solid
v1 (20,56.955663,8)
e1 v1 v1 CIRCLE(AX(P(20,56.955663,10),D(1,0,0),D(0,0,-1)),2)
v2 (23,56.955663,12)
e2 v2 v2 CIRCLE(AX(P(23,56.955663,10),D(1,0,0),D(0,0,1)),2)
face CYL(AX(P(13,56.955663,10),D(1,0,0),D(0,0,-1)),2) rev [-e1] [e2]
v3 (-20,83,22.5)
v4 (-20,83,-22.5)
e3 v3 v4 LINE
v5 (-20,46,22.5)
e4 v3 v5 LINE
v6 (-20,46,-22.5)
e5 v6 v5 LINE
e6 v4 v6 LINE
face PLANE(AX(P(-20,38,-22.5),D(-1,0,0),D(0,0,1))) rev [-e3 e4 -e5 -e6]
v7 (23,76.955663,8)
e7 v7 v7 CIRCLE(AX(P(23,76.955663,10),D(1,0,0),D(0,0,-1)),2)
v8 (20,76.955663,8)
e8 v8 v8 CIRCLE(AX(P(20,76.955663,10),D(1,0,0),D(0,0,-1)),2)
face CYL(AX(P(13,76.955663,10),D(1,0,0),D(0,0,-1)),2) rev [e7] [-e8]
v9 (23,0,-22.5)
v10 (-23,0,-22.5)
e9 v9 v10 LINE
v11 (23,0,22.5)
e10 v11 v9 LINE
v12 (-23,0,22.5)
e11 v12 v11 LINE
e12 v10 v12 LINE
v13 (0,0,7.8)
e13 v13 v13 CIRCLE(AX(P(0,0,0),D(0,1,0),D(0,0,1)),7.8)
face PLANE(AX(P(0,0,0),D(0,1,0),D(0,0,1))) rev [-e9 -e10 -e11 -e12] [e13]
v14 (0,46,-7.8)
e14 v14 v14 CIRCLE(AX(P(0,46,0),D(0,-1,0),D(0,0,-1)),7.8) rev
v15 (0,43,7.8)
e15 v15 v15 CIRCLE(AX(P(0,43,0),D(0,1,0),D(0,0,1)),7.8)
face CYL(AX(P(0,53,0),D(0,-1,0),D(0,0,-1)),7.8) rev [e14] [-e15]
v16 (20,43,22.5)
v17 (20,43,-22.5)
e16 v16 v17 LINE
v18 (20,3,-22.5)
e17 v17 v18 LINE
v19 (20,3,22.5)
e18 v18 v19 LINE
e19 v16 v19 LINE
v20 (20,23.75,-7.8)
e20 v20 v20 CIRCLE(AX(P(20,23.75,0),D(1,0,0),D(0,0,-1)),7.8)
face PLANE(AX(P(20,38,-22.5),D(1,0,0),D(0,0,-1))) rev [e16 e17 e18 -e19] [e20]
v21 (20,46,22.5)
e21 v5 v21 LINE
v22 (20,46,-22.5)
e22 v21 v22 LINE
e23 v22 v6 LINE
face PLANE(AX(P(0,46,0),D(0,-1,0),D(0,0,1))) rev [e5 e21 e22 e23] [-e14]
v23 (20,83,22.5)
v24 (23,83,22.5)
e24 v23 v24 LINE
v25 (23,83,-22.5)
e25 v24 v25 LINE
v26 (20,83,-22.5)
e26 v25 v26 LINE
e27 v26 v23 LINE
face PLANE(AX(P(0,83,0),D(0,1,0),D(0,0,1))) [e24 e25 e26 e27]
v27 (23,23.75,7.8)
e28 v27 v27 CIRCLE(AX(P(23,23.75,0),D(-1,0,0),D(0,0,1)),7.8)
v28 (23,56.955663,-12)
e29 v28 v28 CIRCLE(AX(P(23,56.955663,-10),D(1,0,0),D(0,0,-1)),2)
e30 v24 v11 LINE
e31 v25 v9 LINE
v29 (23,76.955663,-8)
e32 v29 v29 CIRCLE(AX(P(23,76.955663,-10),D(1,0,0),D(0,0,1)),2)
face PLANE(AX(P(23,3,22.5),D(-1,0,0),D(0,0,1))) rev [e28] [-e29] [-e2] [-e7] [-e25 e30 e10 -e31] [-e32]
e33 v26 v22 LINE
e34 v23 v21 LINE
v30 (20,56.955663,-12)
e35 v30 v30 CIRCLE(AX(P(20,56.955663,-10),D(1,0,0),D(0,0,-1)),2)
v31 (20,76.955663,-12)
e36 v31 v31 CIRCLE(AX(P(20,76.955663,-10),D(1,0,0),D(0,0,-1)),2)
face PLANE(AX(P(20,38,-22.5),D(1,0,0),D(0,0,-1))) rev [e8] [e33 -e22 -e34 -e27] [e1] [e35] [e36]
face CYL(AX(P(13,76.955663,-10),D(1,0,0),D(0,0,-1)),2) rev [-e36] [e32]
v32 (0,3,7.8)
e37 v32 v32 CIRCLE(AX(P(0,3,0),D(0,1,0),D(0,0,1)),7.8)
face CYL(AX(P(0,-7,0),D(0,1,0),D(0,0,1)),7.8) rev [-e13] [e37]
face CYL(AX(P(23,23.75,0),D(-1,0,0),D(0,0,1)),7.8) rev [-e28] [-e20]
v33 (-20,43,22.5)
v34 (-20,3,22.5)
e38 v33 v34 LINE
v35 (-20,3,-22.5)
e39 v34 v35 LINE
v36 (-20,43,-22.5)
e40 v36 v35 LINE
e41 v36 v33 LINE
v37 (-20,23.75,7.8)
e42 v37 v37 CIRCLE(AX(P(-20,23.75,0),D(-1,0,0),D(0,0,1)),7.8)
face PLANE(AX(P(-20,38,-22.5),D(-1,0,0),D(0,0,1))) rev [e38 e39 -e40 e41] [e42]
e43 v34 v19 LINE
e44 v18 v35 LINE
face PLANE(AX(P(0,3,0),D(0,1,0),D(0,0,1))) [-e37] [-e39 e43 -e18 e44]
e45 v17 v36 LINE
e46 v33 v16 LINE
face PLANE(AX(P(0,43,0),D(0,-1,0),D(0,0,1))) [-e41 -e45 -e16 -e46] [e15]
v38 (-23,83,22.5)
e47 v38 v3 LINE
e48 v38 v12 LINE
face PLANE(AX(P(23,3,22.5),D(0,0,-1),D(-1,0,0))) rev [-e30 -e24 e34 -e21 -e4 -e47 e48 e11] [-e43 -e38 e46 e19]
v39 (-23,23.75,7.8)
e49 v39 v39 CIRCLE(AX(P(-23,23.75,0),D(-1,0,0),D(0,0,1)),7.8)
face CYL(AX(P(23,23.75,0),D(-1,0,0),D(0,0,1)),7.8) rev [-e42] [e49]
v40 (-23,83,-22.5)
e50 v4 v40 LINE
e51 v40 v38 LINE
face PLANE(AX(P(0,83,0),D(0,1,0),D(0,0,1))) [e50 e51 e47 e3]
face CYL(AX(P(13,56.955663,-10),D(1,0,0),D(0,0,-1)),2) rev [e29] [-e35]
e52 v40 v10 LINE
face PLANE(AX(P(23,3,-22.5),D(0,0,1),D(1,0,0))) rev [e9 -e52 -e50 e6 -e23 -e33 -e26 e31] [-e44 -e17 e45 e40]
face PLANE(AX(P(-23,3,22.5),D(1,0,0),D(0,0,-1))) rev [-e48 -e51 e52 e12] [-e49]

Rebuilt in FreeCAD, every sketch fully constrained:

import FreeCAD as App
import Part
import Sketcher

V = App.Vector


def add_polygon(sketch, points):
    """Adds a closed chain of lines whose ends are joined by coincident constraints."""
    first, n = sketch.GeometryCount, len(points)
    for a, b in zip(points, points[1:] + points[:1]):
        sketch.addGeometry(Part.LineSegment(App.Vector(*a, 0), App.Vector(*b, 0)), False)
    for i in range(n):
        sketch.addConstraint(Sketcher.Constraint("Coincident", first + i, 2, first + (i + 1) % n, 1))

doc = App.newDocument("Part")
params = doc.addObject("Spreadsheet::Sheet", "Params")
for row, (alias, value) in enumerate([
    ("sketch1_width", "46 mm"),
    ("sketch1_height", "45 mm"),
    ("pad1_length", "3 mm"),
    ("sketch2_width", "3 mm"),
    ("sketch2_height", "45 mm"),
    ("pad2_length", "35 mm"),
    ("sketch3_diameter", "15.6 mm"),
    ("pocket1_length", "10 mm"),
    ("sketch4_diameter", "15.6 mm"),
    ("sketch5_width", "3 mm"),
    ("sketch5_height", "45 mm"),
    ("pad3_length", "45 mm"),
    ("sketch6_diameter", "4 mm"),
    ("pocket3_length", "10 mm"),
], start=1):
    params.set(f"A{row}", alias)
    params.set(f"B{row}", "=" + value)
    params.setAlias(f"B{row}", alias)

body = doc.addObject("PartDesign::Body", "Body")

# Sketch on XZ plane
sketch1 = body.newObject("Sketcher::SketchObject", "Sketch")
sketch1.AttachmentSupport = (doc.getObject("XZ_Plane"), [""])
sketch1.MapMode = "FlatFace"
add_polygon(sketch1, [(-23, -22.5), (-23, 22.5), (23, 22.5), (23, -22.5)])  # lines 0-3
sketch1.addConstraint(Sketcher.Constraint("Vertical", 0))
sketch1.addConstraint(Sketcher.Constraint("Horizontal", 1))
sketch1.addConstraint(Sketcher.Constraint("Vertical", 2))
sketch1.addConstraint(Sketcher.Constraint("Horizontal", 3))
sketch1.addConstraint(Sketcher.Constraint("Symmetric", 0, 2, 2, 2, -1, 1))
sketch1.addConstraint(Sketcher.Constraint("DistanceX", 1, 1, 1, 2, 46.0))
sketch1.addConstraint(Sketcher.Constraint("DistanceY", 0, 1, 0, 2, 45.0))
sketch1.setExpression("Constraints[9]", "Params.sketch1_width")
sketch1.setExpression("Constraints[10]", "Params.sketch1_height")
pad1 = body.newObject("PartDesign::Pad", "Pad")
pad1.Profile = sketch1
pad1.setExpression("Length", "Params.pad1_length")
pad1.Reversed = True

# Sketch on XZ plane
sketch2 = body.newObject("Sketcher::SketchObject", "Sketch001")
sketch2.AttachmentSupport = (doc.getObject("XZ_Plane"), [""])
sketch2.MapMode = "FlatFace"
sketch2.AttachmentOffset = App.Placement(V(0, 0, -3), App.Rotation())
add_polygon(sketch2, [(20, -22.5), (20, 22.5), (23, 22.5), (23, -22.5)])  # lines 0-3
add_polygon(sketch2, [(-23, -22.5), (-23, 22.5), (-20, 22.5), (-20, -22.5)])  # lines 4-7
sketch2.addConstraint(Sketcher.Constraint("Vertical", 0))
sketch2.addConstraint(Sketcher.Constraint("Horizontal", 1))
sketch2.addConstraint(Sketcher.Constraint("Vertical", 2))
sketch2.addConstraint(Sketcher.Constraint("Horizontal", 3))
sketch2.addConstraint(Sketcher.Constraint("Vertical", 4))
sketch2.addConstraint(Sketcher.Constraint("Horizontal", 5))
sketch2.addConstraint(Sketcher.Constraint("Vertical", 6))
sketch2.addConstraint(Sketcher.Constraint("Horizontal", 7))
sketch2.addConstraint(Sketcher.Constraint("Symmetric", 2, 2, 4, 2, -1, 1))
sketch2.addConstraint(Sketcher.Constraint("Symmetric", 0, 2, 6, 2, -1, 1))
sketch2.addConstraint(Sketcher.Constraint("Horizontal", 1, 2, 4, 2))
sketch2.addConstraint(Sketcher.Constraint("DistanceX", 1, 1, 1, 2, 3.0))
sketch2.addConstraint(Sketcher.Constraint("DistanceY", 0, 1, 0, 2, 45.0))
sketch2.addConstraint(Sketcher.Constraint("DistanceX", -1, 1, 0, 2, 20.0))
sketch2.setExpression("Constraints[19]", "Params.sketch2_width")
sketch2.setExpression("Constraints[20]", "Params.sketch2_height")
pad2 = body.newObject("PartDesign::Pad", "Pad001")
pad2.Profile = sketch2
pad2.setExpression("Length", "Params.pad2_length")
pad2.Reversed = True

# Sketch on XZ plane
sketch3 = body.newObject("Sketcher::SketchObject", "Sketch002")
sketch3.AttachmentSupport = (doc.getObject("XZ_Plane"), [""])
sketch3.MapMode = "FlatFace"
sketch3.AttachmentOffset = App.Placement(V(0, 0, -3), App.Rotation())
sketch3.addGeometry(Part.Circle(V(0, 0, 0), V(0, 0, 1), 7.8), False)
sketch3.addConstraint(Sketcher.Constraint("Coincident", 0, 3, -1, 1))
sketch3.addConstraint(Sketcher.Constraint("Diameter", 0, 15.6))
sketch3.setExpression("Constraints[1]", "Params.sketch3_diameter")
pocket1 = body.newObject("PartDesign::Pocket", "Pocket")
pocket1.Profile = sketch3
pocket1.setExpression("Length", "Params.pocket1_length")
pocket1.Reversed = True

# Sketch on YZ plane
sketch4 = body.newObject("Sketcher::SketchObject", "Sketch003")
sketch4.AttachmentSupport = (doc.getObject("YZ_Plane"), [""])
sketch4.MapMode = "FlatFace"
sketch4.AttachmentOffset = App.Placement(V(0, 0, -23), App.Rotation())
sketch4.addGeometry(Part.Circle(V(23.75, 0, 0), V(0, 0, 1), 7.8), False)
sketch4.addConstraint(Sketcher.Constraint("PointOnObject", 0, 3, -1))
sketch4.addConstraint(Sketcher.Constraint("Diameter", 0, 15.6))
sketch4.addConstraint(Sketcher.Constraint("DistanceX", -1, 1, 0, 3, 23.75))
sketch4.setExpression("Constraints[1]", "Params.sketch4_diameter")
pocket2 = body.newObject("PartDesign::Pocket", "Pocket001")
pocket2.Profile = sketch4
pocket2.Type = "ThroughAll"
pocket2.Reversed = True

# Sketch on XZ plane
sketch5 = body.newObject("Sketcher::SketchObject", "Sketch004")
sketch5.AttachmentSupport = (doc.getObject("XZ_Plane"), [""])
sketch5.MapMode = "FlatFace"
sketch5.AttachmentOffset = App.Placement(V(0, 0, -38), App.Rotation())
add_polygon(sketch5, [(-23, -22.5), (-23, 22.5), (-20, 22.5), (-20, -22.5)])  # lines 0-3
add_polygon(sketch5, [(20, -22.5), (20, 22.5), (23, 22.5), (23, -22.5)])  # lines 4-7
sketch5.addConstraint(Sketcher.Constraint("Vertical", 0))
sketch5.addConstraint(Sketcher.Constraint("Horizontal", 1))
sketch5.addConstraint(Sketcher.Constraint("Vertical", 2))
sketch5.addConstraint(Sketcher.Constraint("Horizontal", 3))
sketch5.addConstraint(Sketcher.Constraint("Vertical", 4))
sketch5.addConstraint(Sketcher.Constraint("Horizontal", 5))
sketch5.addConstraint(Sketcher.Constraint("Vertical", 6))
sketch5.addConstraint(Sketcher.Constraint("Horizontal", 7))
sketch5.addConstraint(Sketcher.Constraint("Symmetric", 2, 2, 4, 2, -1, 1))
sketch5.addConstraint(Sketcher.Constraint("Symmetric", 0, 2, 6, 2, -1, 1))
sketch5.addConstraint(Sketcher.Constraint("Horizontal", 1, 2, 4, 2))
sketch5.addConstraint(Sketcher.Constraint("DistanceX", 1, 1, 1, 2, 3.0))
sketch5.addConstraint(Sketcher.Constraint("DistanceY", 0, 1, 0, 2, 45.0))
sketch5.addConstraint(Sketcher.Constraint("DistanceX", 0, 2, -1, 1, 23.0))
sketch5.setExpression("Constraints[19]", "Params.sketch5_width")
sketch5.setExpression("Constraints[20]", "Params.sketch5_height")
pad3 = body.newObject("PartDesign::Pad", "Pad002")
pad3.Profile = sketch5
pad3.setExpression("Length", "Params.pad3_length")
pad3.Reversed = True

# Sketch on YZ plane
sketch6 = body.newObject("Sketcher::SketchObject", "Sketch005")
sketch6.AttachmentSupport = (doc.getObject("YZ_Plane"), [""])
sketch6.MapMode = "FlatFace"
sketch6.AttachmentOffset = App.Placement(V(0, 0, 23), App.Rotation())
sketch6.addGeometry(Part.Circle(V(76.955663, 10, 0), V(0, 0, 1), 2), False)
sketch6.addGeometry(Part.Circle(V(76.955663, -10, 0), V(0, 0, 1), 2), False)
sketch6.addGeometry(Part.Circle(V(56.955663, -10, 0), V(0, 0, 1), 2), False)
sketch6.addGeometry(Part.Circle(V(56.955663, 10, 0), V(0, 0, 1), 2), False)
sketch6.addConstraint(Sketcher.Constraint("Equal", 0, 1))
sketch6.addConstraint(Sketcher.Constraint("Equal", 1, 2))
sketch6.addConstraint(Sketcher.Constraint("Equal", 2, 3))
sketch6.addConstraint(Sketcher.Constraint("Symmetric", 0, 3, 1, 3, -1))
sketch6.addConstraint(Sketcher.Constraint("Symmetric", 2, 3, 3, 3, -1))
sketch6.addConstraint(Sketcher.Constraint("Horizontal", 1, 3, 2, 3))
sketch6.addConstraint(Sketcher.Constraint("Diameter", 0, 4.0))
sketch6.addConstraint(Sketcher.Constraint("DistanceY", -1, 1, 0, 3, 10.0))
sketch6.addConstraint(Sketcher.Constraint("DistanceX", 2, 3, 1, 3, 20.0))
sketch6.addConstraint(Sketcher.Constraint("DistanceX", -1, 1, 0, 3, 76.955663))
sketch6.setExpression("Constraints[6]", "Params.sketch6_diameter")
pocket3 = body.newObject("PartDesign::Pocket", "Pocket002")
pocket3.Profile = sketch6
pocket3.setExpression("Length", "Params.pocket3_length")
doc.recompute()

datumplane = body.newObject("PartDesign::Plane", "DatumPlane")
datumplane.AttachmentSupport = (doc.getObject("XZ_Plane"), [""])
datumplane.MapMode = "FlatFace"
datumplane.AttachmentOffset = App.Placement(V(0, 0, -23), App.Rotation())
mirrored = body.newObject("PartDesign::Mirrored", "Mirrored")
mirrored.Originals = [pad1, pocket1]
mirrored.MirrorPlane = (datumplane, [""])
body.Tip = mirrored

doc.recompute()
